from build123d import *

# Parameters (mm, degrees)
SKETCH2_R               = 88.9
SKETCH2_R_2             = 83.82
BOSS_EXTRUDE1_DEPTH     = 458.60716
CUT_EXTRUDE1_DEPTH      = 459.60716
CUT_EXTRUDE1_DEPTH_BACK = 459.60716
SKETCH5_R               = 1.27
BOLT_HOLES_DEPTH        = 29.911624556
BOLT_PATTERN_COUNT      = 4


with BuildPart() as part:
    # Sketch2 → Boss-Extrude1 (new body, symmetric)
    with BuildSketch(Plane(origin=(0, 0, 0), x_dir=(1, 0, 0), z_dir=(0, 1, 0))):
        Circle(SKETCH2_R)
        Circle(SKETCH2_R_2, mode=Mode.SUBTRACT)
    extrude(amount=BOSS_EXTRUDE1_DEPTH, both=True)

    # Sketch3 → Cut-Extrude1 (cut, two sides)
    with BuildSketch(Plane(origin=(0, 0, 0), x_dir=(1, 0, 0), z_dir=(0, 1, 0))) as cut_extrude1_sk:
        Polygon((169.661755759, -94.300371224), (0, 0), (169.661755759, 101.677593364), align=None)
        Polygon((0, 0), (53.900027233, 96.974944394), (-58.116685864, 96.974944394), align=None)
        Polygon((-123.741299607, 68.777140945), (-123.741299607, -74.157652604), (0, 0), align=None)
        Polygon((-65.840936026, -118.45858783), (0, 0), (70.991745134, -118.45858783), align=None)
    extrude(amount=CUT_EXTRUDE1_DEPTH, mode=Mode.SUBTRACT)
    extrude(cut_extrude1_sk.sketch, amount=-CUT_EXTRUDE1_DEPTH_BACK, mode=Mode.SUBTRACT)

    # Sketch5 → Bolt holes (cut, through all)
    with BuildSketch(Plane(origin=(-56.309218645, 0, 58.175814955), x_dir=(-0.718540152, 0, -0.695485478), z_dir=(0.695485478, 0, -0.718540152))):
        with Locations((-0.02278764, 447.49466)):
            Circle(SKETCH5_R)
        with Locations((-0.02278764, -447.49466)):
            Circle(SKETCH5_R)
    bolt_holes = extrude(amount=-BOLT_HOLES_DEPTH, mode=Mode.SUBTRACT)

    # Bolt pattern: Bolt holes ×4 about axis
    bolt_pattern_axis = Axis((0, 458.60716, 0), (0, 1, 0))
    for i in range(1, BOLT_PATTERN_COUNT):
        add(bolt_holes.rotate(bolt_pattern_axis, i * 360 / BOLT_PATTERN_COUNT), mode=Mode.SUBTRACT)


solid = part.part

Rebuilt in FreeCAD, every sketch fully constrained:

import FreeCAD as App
import Part
import Sketcher

V = App.Vector
Q = App.Units.Quantity

doc = App.newDocument("Part")
body = doc.addObject("PartDesign::Body", "Body")
body.AllowCompound = True

# Sketch on XZ plane
sketch1 = body.newObject("Sketcher::SketchObject", "Sketch")
sketch1.AttachmentSupport = (doc.getObject("XZ_Plane"), [""])
sketch1.MapMode = "FlatFace"
sketch1.addGeometry([
    Part.Circle(V(0, 0, 0), V(0, 0, 1), 89),
    Part.Circle(V(0, 0, 0), V(0, 0, 1), 84),
], False)
sketch1.addConstraint([
    Sketcher.Constraint("Coincident", 0, 3, -1, 1),
    Sketcher.Constraint("Coincident", 1, 3, -1, 1),
    Sketcher.Constraint("Diameter", 0, Q("7 in")),
    Sketcher.Constraint("Diameter", 1, Q("6.6 in")),
])
pad1 = body.newObject("PartDesign::Pad", "Pad")
pad1.Profile = sketch1
pad1.Length = Q("36.1108 in")
pad1.Midplane = True

# Sketch on XZ plane
sketch2 = body.newObject("Sketcher::SketchObject", "Sketch001")
sketch2.AttachmentSupport = (doc.getObject("XZ_Plane"), [""])
sketch2.MapMode = "FlatFace"
sketch2.addGeometry([
    Part.LineSegment(V(0, 0, 0), V(170, 94, 0)),  # 0
    Part.LineSegment(V(170, 94, 0), V(170, -102, 0)),  # 1
    Part.LineSegment(V(170, -102, 0), V(0, 0, 0)),  # 2
    Part.LineSegment(V(0, 0, 0), V(54, -97, 0)),  # 3
    Part.LineSegment(V(54, -97, 0), V(-58, -97, 0)),  # 4
    Part.LineSegment(V(-58, -97, 0), V(0, 0, 0)),  # 5
    Part.LineSegment(V(-124, -69, 0), V(-124, 74, 0)),  # 6
    Part.LineSegment(V(-124, 74, 0), V(0, 0, 0)),  # 7
    Part.LineSegment(V(0, 0, 0), V(-124, -69, 0)),  # 8
    Part.LineSegment(V(0, 0, 0), V(-66, 118, 0)),  # 9
    Part.LineSegment(V(-66, 118, 0), V(71, 118, 0)),  # 10
    Part.LineSegment(V(71, 118, 0), V(0, 0, 0)),  # 11
], False)
sketch2.addConstraint([
    Sketcher.Constraint("Coincident", 0, 2, 1, 1),
    Sketcher.Constraint("Coincident", 1, 2, 2, 1),
    Sketcher.Constraint("Coincident", 2, 2, 0, 1),
    Sketcher.Constraint("Coincident", 3, 2, 4, 1),
    Sketcher.Constraint("Coincident", 4, 2, 5, 1),
    Sketcher.Constraint("Coincident", 5, 2, 3, 1),
    Sketcher.Constraint("Coincident", 6, 2, 7, 1),
    Sketcher.Constraint("Coincident", 7, 2, 8, 1),
    Sketcher.Constraint("Coincident", 8, 2, 6, 1),
    Sketcher.Constraint("Coincident", 9, 2, 10, 1),
    Sketcher.Constraint("Coincident", 10, 2, 11, 1),
    Sketcher.Constraint("Coincident", 11, 2, 9, 1),
    Sketcher.Constraint("Vertical", 1),
    Sketcher.Constraint("Horizontal", 4),
    Sketcher.Constraint("Vertical", 6),
    Sketcher.Constraint("Horizontal", 10),
    Sketcher.Constraint("Coincident", 2, 2, -1, 1),
    Sketcher.Constraint("Coincident", 5, 2, -1, 1),
    Sketcher.Constraint("Coincident", 7, 2, -1, 1),
    Sketcher.Constraint("Coincident", 11, 2, -1, 1),
    Sketcher.Constraint("Perpendicular", 0, 3),
    Sketcher.Constraint("Perpendicular", 2, 5),
    Sketcher.Constraint("Perpendicular", 5, 7),
    Sketcher.Constraint("Perpendicular", 3, 8),
    Sketcher.Constraint("Perpendicular", 8, 9),
    Sketcher.Constraint("Perpendicular", 7, 11),
    Sketcher.Constraint("DistanceX", 10, 1, 10, 2, Q("136.832681 mm")),
    Sketcher.Constraint("DistanceX", 6, 2, -1, 1, Q("123.7413 mm")),
    Sketcher.Constraint("Distance", 0, Q("194.107371 mm")),
    Sketcher.Constraint("Distance", 11, Q("138.102371 mm")),
    Sketcher.Constraint("DistanceX", 4, 2, 4, 1, Q("112.016713 mm")),
    Sketcher.Constraint("DistanceY", 1, 2, 1, 1, Q("195.977965 mm")),
])
pocket1 = body.newObject("PartDesign::Pocket", "Pocket")
pocket1.Profile = sketch2
pocket1.Type = "ThroughAll"
pocket1.Midplane = True

# Sketch on an angled plane
sketch3 = body.newObject("Sketcher::SketchObject", "Sketch002")
sketch3.Placement = App.Placement(V(-56.309219, 0, 58.175815), App.Rotation(V(-0.718540152, 0, -0.695485478), V(0, 1, 0), V(0.695485478, 0, -0.718540152), "ZXY"))
sketch3.addGeometry([
    Part.Circle(V(0, 447.5, 0), V(0, 0, 1), 1.3),
    Part.Circle(V(0, -447.5, 0), V(0, 0, 1), 1.3),
], False)
sketch3.addConstraint([
    Sketcher.Constraint("Equal", 0, 1),
    Sketcher.Constraint("Symmetric", 0, 3, 1, 3, -1),
    Sketcher.Constraint("Diameter", 0, Q("0.1 in")),
    Sketcher.Constraint("DistanceY", -1, 1, 0, 3, Q("17.6179 in")),
    Sketcher.Constraint("DistanceX", 0, 3, -1, 1, Q("0.022788 mm")),
])
pocket2 = body.newObject("PartDesign::Pocket", "Pocket001")
pocket2.Profile = sketch3
pocket2.Type = "ThroughAll"
doc.recompute()

polarpattern = body.newObject("PartDesign::PolarPattern", "PolarPattern")
polarpattern.Originals = [pocket2]
polarpattern.Axis = (doc.getObject("Y_Axis"), [""])
polarpattern.Angle = 360
polarpattern.Occurrences = 4
body.Tip = polarpattern

doc.recompute()
